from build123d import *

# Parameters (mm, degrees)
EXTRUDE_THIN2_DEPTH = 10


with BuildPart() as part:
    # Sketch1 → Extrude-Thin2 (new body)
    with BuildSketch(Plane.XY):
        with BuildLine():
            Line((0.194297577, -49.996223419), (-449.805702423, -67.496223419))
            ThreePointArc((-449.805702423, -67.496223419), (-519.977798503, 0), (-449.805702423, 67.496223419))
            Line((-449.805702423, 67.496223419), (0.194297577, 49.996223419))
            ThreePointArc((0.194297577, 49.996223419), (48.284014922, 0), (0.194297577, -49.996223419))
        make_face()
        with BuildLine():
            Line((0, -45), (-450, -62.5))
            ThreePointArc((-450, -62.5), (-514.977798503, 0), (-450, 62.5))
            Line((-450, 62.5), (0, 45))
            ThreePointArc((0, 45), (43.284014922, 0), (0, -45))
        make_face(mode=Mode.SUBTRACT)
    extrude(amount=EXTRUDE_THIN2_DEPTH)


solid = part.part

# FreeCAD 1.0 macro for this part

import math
import FreeCAD as App
import Part
import Sketcher
from FreeCAD import Vector

doc = App.newDocument("Part")
body = doc.addObject("PartDesign::Body", "Body")

sketch1 = body.newObject("Sketcher::SketchObject", "Sketch")
sketch1.AttachmentSupport = (doc.getObject("XY_Plane"), [""])
sketch1.MapMode = "FlatFace"
sketch1.addGeometry(Part.LineSegment(Vector(-449.805702, -67.496223, 0), Vector(0.194298, -49.996223, 0)), False)
sketch1.addGeometry(Part.ArcOfCircle(Part.Circle(Vector(-1.75, 0, 0), Vector(0, 0, 1), 50.034015), math.radians(-87.772953), math.radians(87.772953)), False)
sketch1.addGeometry(Part.LineSegment(Vector(0.194298, 49.996223, 0), Vector(-449.805702, 67.496223, 0)), False)
sketch1.addGeometry(Part.ArcOfCircle(Part.Circle(Vector(-452.430556, 0, 0), Vector(0, 0, 1), 67.547243), math.radians(87.772953), math.radians(272.227047)), False)
sketch1.addGeometry(Part.LineSegment(Vector(0, -45, 0), Vector(-450, -62.5, 0)), False)
sketch1.addGeometry(Part.ArcOfCircle(Part.Circle(Vector(-452.430556, 0, 0), Vector(0, 0, 1), 62.547243), math.radians(87.772953), math.radians(272.227047)), False)
sketch1.addGeometry(Part.LineSegment(Vector(-450, 62.5, 0), Vector(0, 45, 0)), False)
sketch1.addGeometry(Part.ArcOfCircle(Part.Circle(Vector(-1.75, 0, 0), Vector(0, 0, 1), 45.034015), math.radians(-87.772953), math.radians(87.772953)), False)
sketch1.addConstraint(Sketcher.Constraint("Tangent", 0, 2, 1, 1))
sketch1.addConstraint(Sketcher.Constraint("Tangent", 1, 2, 2, 1))
sketch1.addConstraint(Sketcher.Constraint("Tangent", 2, 2, 3, 1))
sketch1.addConstraint(Sketcher.Constraint("Tangent", 3, 2, 0, 1))
sketch1.addConstraint(Sketcher.Constraint("Tangent", 4, 2, 5, 2))
sketch1.addConstraint(Sketcher.Constraint("Tangent", 5, 1, 6, 1))
sketch1.addConstraint(Sketcher.Constraint("Tangent", 6, 2, 7, 2))
sketch1.addConstraint(Sketcher.Constraint("Tangent", 7, 1, 4, 1))
sketch1.addConstraint(Sketcher.Constraint("Coincident", 5, 3, 3, 3))
sketch1.addConstraint(Sketcher.Constraint("Coincident", 7, 3, 1, 3))
sketch1.addConstraint(Sketcher.Constraint("Symmetric", 6, 2, 7, 1, -1, 1))
sketch1.addConstraint(Sketcher.Constraint("PointOnObject", 3, 3, -1))
sketch1.addConstraint(Sketcher.Constraint("Parallel", 0, 4))
sketch1.addConstraint(Sketcher.Constraint("DistanceX", 4, 2, -1, 1, 450.0))
sketch1.addConstraint(Sketcher.Constraint("DistanceY", -1, 1, 6, 2, 45.0))
sketch1.addConstraint(Sketcher.Constraint("DistanceY", 4, 2, 5, 1, 125.0))
sketch1.addConstraint(Sketcher.Constraint("Radius", 1, 50.034015))
pad1 = body.newObject("PartDesign::Pad", "Pad")
pad1.Profile = sketch1
pad1.Length = 10

doc.recompute()
